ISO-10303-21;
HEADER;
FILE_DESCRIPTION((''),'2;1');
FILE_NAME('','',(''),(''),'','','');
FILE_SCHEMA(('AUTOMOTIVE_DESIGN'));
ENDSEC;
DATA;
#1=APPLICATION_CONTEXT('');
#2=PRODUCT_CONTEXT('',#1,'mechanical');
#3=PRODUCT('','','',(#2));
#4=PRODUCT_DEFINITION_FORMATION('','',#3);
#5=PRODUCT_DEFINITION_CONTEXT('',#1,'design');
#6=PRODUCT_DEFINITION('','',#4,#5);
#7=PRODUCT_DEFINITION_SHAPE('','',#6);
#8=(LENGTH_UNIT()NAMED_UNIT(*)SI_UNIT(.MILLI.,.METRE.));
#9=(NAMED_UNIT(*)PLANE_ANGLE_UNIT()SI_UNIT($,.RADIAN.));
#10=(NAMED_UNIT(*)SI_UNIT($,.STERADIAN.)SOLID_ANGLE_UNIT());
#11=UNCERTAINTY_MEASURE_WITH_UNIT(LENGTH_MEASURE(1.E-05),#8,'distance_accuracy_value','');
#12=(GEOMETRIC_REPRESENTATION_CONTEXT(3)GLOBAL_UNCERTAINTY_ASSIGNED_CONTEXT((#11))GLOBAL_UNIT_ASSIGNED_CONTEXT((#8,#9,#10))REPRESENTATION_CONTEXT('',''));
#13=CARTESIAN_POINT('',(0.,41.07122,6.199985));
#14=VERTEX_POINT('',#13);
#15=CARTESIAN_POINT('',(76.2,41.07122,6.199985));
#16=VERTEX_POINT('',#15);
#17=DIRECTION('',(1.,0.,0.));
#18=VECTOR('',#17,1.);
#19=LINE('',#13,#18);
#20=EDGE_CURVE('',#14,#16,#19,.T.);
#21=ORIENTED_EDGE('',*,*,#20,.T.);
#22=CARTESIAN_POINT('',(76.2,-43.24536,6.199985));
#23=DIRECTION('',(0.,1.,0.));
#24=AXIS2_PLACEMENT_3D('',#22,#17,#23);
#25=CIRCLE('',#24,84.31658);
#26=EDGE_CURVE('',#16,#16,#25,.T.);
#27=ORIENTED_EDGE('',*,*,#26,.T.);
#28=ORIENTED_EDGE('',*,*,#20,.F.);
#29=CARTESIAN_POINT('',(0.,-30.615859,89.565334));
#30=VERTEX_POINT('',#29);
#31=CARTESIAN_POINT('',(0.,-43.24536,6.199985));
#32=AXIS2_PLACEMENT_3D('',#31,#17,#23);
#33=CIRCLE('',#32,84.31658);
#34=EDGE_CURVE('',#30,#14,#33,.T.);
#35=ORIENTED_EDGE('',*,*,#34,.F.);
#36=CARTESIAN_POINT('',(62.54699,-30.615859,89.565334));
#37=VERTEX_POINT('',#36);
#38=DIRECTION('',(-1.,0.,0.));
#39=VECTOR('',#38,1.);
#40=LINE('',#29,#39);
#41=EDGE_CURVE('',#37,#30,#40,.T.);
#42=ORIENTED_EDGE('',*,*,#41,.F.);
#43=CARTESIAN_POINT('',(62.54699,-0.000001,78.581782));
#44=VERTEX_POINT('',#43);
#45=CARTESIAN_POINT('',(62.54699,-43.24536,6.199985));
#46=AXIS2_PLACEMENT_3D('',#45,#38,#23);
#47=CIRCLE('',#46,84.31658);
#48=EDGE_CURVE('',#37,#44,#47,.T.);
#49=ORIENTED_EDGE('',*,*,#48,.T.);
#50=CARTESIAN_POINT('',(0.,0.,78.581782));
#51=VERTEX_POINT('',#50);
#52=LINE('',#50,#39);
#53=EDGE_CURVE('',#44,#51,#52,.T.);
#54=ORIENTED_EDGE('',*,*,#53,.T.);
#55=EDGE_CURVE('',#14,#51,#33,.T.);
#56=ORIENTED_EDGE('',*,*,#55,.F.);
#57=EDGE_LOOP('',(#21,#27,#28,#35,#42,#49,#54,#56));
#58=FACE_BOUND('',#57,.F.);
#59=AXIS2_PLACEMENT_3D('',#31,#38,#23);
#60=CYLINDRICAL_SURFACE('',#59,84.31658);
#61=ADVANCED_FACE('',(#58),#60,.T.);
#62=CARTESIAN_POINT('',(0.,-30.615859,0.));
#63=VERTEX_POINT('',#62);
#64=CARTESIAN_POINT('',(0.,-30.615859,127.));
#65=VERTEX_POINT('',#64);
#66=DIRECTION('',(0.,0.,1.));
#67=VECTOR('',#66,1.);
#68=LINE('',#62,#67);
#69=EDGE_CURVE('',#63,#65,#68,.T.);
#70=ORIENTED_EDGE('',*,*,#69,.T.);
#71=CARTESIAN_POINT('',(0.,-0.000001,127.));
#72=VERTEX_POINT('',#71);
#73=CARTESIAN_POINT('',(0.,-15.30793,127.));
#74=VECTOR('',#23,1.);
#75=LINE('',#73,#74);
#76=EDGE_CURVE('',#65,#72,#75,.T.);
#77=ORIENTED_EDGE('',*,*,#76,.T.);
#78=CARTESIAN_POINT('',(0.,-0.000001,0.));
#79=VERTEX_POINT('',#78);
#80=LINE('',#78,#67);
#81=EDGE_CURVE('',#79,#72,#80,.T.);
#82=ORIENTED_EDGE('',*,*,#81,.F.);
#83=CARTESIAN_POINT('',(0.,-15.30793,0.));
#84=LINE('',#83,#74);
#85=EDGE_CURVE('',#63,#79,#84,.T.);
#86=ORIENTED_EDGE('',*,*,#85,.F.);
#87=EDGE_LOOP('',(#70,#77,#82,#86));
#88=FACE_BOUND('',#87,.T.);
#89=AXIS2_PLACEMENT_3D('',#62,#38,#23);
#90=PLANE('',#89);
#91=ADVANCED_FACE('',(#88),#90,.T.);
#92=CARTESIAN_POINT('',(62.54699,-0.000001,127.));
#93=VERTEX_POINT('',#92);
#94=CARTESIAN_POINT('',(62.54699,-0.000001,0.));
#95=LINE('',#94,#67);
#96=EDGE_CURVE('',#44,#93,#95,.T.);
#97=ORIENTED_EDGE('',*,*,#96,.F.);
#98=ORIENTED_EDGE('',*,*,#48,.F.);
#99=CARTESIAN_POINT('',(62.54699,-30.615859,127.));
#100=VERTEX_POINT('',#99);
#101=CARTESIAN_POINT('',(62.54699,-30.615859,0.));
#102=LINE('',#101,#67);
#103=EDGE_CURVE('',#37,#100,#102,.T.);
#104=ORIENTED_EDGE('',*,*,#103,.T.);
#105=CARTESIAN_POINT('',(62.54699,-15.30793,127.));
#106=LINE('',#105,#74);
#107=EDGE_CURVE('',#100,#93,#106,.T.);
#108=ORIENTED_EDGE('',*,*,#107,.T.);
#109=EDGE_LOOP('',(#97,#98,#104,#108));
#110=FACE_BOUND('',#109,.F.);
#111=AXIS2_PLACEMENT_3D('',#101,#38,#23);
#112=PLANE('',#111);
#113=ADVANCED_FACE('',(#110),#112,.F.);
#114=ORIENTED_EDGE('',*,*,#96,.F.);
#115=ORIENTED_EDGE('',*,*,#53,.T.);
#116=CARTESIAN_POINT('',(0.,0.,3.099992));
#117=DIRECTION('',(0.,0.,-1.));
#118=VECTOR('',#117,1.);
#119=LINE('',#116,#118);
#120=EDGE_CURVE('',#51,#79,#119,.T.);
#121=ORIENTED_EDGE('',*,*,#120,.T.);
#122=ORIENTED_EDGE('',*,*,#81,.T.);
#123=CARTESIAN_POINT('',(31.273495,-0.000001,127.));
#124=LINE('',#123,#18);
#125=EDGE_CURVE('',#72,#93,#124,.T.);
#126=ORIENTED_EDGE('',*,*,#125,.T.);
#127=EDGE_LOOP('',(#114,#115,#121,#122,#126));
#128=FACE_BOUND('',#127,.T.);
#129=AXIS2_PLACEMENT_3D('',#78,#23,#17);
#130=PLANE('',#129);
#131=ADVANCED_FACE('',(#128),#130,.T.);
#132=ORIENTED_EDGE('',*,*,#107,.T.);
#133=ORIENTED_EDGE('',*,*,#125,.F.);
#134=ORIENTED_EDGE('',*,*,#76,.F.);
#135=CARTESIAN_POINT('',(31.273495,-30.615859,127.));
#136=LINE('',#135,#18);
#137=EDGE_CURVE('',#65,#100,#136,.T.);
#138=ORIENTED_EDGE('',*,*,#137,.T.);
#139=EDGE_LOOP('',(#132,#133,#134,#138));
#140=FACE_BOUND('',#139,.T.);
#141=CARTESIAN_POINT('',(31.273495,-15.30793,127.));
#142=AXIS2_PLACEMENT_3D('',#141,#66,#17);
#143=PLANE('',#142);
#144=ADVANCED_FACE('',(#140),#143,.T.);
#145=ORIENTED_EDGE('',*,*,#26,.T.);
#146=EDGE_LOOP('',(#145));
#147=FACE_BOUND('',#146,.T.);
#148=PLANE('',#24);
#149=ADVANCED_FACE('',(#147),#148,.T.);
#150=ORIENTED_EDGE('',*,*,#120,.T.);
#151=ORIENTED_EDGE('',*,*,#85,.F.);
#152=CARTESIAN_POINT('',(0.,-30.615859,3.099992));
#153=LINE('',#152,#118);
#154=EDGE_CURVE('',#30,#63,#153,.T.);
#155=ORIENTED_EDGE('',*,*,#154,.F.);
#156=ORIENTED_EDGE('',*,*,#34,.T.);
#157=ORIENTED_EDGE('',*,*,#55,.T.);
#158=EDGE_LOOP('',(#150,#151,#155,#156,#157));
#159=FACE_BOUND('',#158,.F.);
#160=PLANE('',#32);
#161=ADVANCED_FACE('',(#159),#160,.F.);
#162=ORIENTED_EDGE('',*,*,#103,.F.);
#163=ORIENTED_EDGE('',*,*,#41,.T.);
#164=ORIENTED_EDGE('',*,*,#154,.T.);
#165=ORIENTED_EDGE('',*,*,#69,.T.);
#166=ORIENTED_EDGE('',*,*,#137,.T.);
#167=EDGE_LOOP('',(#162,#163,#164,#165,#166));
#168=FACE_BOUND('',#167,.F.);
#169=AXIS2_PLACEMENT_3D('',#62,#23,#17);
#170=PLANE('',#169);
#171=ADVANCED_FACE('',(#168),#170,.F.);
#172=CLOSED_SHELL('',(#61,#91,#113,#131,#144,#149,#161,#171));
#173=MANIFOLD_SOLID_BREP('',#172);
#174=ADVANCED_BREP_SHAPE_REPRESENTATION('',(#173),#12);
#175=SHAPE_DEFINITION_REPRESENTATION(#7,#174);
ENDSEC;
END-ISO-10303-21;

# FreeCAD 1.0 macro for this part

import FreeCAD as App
import Part
import Sketcher
Q = App.Units.Quantity

doc = App.newDocument("Part")
body = doc.addObject("PartDesign::Body", "Body")

# Sketch on XY plane
sketch1 = body.newObject("Sketcher::SketchObject", "Sketch")
sketch1.AttachmentSupport = (doc.getObject("XY_Plane"), [""])
sketch1.MapMode = "FlatFace"
sketch1.addGeometry(Part.LineSegment(App.Vector(0, 0, 0), App.Vector(0, -31, 0)), False)
sketch1.addGeometry(Part.LineSegment(App.Vector(0, -31, 0), App.Vector(63, -31, 0)), False)
sketch1.addGeometry(Part.LineSegment(App.Vector(63, -31, 0), App.Vector(63, 0, 0)), False)
sketch1.addGeometry(Part.LineSegment(App.Vector(63, 0, 0), App.Vector(0, 0, 0)), False)
sketch1.addConstraint(Sketcher.Constraint("Coincident", 0, 2, 1, 1))
sketch1.addConstraint(Sketcher.Constraint("Coincident", 1, 2, 2, 1))
sketch1.addConstraint(Sketcher.Constraint("Coincident", 2, 2, 3, 1))
sketch1.addConstraint(Sketcher.Constraint("Coincident", 3, 2, 0, 1))
sketch1.addConstraint(Sketcher.Constraint("Vertical", 0))
sketch1.addConstraint(Sketcher.Constraint("Horizontal", 1))
sketch1.addConstraint(Sketcher.Constraint("Vertical", 2))
sketch1.addConstraint(Sketcher.Constraint("Horizontal", 3))
sketch1.addConstraint(Sketcher.Constraint("Coincident", 3, 2, -1, 1))
sketch1.addConstraint(Sketcher.Constraint("DistanceX", 1, 1, 1, 2, 62.546991))
sketch1.addConstraint(Sketcher.Constraint("DistanceY", 0, 2, 0, 1, 30.615859))
pad1 = body.newObject("PartDesign::Pad", "Pad")
pad1.Profile = sketch1
pad1.Length = Q("5 in")

# Sketch on YZ plane
sketch2 = body.newObject("Sketcher::SketchObject", "Sketch001")
sketch2.AttachmentSupport = (doc.getObject("YZ_Plane"), [""])
sketch2.MapMode = "FlatFace"
sketch2.addGeometry(Part.Circle(App.Vector(-43, 6, 0), App.Vector(0, 0, 1), 84), False)
sketch2.addConstraint(Sketcher.Constraint("Diameter", 0, 168.63316))
sketch2.addConstraint(Sketcher.Constraint("DistanceX", 0, 3, -1, 1, 43.24536))
sketch2.addConstraint(Sketcher.Constraint("DistanceY", -1, 1, 0, 3, 6.199985))
pad2 = body.newObject("PartDesign::Pad", "Pad001")
pad2.Profile = sketch2
pad2.Length = Q("3 in")

doc.recompute()
